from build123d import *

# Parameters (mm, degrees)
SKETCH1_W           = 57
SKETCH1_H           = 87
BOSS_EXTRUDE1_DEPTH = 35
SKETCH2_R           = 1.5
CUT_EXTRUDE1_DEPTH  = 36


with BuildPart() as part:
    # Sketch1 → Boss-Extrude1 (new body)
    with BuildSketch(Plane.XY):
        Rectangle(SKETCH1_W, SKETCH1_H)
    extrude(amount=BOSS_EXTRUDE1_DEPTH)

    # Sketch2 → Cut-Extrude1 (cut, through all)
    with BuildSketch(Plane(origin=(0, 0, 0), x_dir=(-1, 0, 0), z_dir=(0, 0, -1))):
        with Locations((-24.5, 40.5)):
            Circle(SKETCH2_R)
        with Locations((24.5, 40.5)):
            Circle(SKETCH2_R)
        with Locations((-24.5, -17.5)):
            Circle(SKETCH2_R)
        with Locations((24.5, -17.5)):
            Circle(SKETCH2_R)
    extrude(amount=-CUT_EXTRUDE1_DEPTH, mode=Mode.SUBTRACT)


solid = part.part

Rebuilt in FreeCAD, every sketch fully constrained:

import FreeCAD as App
import Part
import Sketcher

V = App.Vector
Q = App.Units.Quantity

doc = App.newDocument("Part")
body = doc.addObject("PartDesign::Body", "Body")

# Sketch on XY plane
sketch1 = body.newObject("Sketcher::SketchObject", "Sketch")
sketch1.AttachmentSupport = (doc.getObject("XY_Plane"), [""])
sketch1.MapMode = "FlatFace"
sketch1.addGeometry([
    Part.LineSegment(V(-28.5, 43.5, 0), V(-28.5, -43.5, 0)),
    Part.LineSegment(V(-28.5, -43.5, 0), V(28.5, -43.5, 0)),
    Part.LineSegment(V(28.5, -43.5, 0), V(28.5, 43.5, 0)),
    Part.LineSegment(V(28.5, 43.5, 0), V(-28.5, 43.5, 0)),
], False)
sketch1.addConstraint([
    Sketcher.Constraint("Coincident", 0, 2, 1, 1),
    Sketcher.Constraint("Coincident", 1, 2, 2, 1),
    Sketcher.Constraint("Coincident", 2, 2, 3, 1),
    Sketcher.Constraint("Coincident", 3, 2, 0, 1),
    Sketcher.Constraint("Vertical", 0),
    Sketcher.Constraint("Horizontal", 1),
    Sketcher.Constraint("Vertical", 2),
    Sketcher.Constraint("Horizontal", 3),
    Sketcher.Constraint("Symmetric", 0, 2, 2, 2, -1, 1),
    Sketcher.Constraint("DistanceX", 1, 1, 1, 2, Q("57 mm")),
    Sketcher.Constraint("DistanceY", 0, 2, 0, 1, Q("87 mm")),
])
pad1 = body.newObject("PartDesign::Pad", "Pad")
pad1.Profile = sketch1
pad1.Length = 35

# Sketch on XY plane
sketch2 = body.newObject("Sketcher::SketchObject", "Sketch001")
sketch2.AttachmentSupport = (doc.getObject("XY_Plane"), [""])
sketch2.MapMode = "FlatFace"
sketch2.addGeometry([
    Part.Circle(V(24.5, 40.5, 0), V(0, 0, 1), 1.5),
    Part.Circle(V(-24.5, 40.5, 0), V(0, 0, 1), 1.5),
    Part.Circle(V(24.5, -17.5, 0), V(0, 0, 1), 1.5),
    Part.Circle(V(-24.5, -17.5, 0), V(0, 0, 1), 1.5),
], False)
sketch2.addConstraint([
    Sketcher.Constraint("Equal", 0, 1),
    Sketcher.Constraint("Equal", 1, 2),
    Sketcher.Constraint("Equal", 2, 3),
    Sketcher.Constraint("Symmetric", 0, 3, 1, 3, -2),
    Sketcher.Constraint("Symmetric", 2, 3, 3, 3, -2),
    Sketcher.Constraint("Vertical", 0, 3, 2, 3),
    Sketcher.Constraint("Diameter", 0, Q("3 mm")),
    Sketcher.Constraint("DistanceX", 1, 3, 0, 3, Q("49 mm")),
    Sketcher.Constraint("DistanceY", 2, 3, 0, 3, Q("58 mm")),
    Sketcher.Constraint("DistanceY", -1, 1, 0, 3, Q("40.5 mm")),
])
pocket1 = body.newObject("PartDesign::Pocket", "Pocket")
pocket1.Profile = sketch2
pocket1.Type = "ThroughAll"
pocket1.Reversed = True

doc.recompute()
